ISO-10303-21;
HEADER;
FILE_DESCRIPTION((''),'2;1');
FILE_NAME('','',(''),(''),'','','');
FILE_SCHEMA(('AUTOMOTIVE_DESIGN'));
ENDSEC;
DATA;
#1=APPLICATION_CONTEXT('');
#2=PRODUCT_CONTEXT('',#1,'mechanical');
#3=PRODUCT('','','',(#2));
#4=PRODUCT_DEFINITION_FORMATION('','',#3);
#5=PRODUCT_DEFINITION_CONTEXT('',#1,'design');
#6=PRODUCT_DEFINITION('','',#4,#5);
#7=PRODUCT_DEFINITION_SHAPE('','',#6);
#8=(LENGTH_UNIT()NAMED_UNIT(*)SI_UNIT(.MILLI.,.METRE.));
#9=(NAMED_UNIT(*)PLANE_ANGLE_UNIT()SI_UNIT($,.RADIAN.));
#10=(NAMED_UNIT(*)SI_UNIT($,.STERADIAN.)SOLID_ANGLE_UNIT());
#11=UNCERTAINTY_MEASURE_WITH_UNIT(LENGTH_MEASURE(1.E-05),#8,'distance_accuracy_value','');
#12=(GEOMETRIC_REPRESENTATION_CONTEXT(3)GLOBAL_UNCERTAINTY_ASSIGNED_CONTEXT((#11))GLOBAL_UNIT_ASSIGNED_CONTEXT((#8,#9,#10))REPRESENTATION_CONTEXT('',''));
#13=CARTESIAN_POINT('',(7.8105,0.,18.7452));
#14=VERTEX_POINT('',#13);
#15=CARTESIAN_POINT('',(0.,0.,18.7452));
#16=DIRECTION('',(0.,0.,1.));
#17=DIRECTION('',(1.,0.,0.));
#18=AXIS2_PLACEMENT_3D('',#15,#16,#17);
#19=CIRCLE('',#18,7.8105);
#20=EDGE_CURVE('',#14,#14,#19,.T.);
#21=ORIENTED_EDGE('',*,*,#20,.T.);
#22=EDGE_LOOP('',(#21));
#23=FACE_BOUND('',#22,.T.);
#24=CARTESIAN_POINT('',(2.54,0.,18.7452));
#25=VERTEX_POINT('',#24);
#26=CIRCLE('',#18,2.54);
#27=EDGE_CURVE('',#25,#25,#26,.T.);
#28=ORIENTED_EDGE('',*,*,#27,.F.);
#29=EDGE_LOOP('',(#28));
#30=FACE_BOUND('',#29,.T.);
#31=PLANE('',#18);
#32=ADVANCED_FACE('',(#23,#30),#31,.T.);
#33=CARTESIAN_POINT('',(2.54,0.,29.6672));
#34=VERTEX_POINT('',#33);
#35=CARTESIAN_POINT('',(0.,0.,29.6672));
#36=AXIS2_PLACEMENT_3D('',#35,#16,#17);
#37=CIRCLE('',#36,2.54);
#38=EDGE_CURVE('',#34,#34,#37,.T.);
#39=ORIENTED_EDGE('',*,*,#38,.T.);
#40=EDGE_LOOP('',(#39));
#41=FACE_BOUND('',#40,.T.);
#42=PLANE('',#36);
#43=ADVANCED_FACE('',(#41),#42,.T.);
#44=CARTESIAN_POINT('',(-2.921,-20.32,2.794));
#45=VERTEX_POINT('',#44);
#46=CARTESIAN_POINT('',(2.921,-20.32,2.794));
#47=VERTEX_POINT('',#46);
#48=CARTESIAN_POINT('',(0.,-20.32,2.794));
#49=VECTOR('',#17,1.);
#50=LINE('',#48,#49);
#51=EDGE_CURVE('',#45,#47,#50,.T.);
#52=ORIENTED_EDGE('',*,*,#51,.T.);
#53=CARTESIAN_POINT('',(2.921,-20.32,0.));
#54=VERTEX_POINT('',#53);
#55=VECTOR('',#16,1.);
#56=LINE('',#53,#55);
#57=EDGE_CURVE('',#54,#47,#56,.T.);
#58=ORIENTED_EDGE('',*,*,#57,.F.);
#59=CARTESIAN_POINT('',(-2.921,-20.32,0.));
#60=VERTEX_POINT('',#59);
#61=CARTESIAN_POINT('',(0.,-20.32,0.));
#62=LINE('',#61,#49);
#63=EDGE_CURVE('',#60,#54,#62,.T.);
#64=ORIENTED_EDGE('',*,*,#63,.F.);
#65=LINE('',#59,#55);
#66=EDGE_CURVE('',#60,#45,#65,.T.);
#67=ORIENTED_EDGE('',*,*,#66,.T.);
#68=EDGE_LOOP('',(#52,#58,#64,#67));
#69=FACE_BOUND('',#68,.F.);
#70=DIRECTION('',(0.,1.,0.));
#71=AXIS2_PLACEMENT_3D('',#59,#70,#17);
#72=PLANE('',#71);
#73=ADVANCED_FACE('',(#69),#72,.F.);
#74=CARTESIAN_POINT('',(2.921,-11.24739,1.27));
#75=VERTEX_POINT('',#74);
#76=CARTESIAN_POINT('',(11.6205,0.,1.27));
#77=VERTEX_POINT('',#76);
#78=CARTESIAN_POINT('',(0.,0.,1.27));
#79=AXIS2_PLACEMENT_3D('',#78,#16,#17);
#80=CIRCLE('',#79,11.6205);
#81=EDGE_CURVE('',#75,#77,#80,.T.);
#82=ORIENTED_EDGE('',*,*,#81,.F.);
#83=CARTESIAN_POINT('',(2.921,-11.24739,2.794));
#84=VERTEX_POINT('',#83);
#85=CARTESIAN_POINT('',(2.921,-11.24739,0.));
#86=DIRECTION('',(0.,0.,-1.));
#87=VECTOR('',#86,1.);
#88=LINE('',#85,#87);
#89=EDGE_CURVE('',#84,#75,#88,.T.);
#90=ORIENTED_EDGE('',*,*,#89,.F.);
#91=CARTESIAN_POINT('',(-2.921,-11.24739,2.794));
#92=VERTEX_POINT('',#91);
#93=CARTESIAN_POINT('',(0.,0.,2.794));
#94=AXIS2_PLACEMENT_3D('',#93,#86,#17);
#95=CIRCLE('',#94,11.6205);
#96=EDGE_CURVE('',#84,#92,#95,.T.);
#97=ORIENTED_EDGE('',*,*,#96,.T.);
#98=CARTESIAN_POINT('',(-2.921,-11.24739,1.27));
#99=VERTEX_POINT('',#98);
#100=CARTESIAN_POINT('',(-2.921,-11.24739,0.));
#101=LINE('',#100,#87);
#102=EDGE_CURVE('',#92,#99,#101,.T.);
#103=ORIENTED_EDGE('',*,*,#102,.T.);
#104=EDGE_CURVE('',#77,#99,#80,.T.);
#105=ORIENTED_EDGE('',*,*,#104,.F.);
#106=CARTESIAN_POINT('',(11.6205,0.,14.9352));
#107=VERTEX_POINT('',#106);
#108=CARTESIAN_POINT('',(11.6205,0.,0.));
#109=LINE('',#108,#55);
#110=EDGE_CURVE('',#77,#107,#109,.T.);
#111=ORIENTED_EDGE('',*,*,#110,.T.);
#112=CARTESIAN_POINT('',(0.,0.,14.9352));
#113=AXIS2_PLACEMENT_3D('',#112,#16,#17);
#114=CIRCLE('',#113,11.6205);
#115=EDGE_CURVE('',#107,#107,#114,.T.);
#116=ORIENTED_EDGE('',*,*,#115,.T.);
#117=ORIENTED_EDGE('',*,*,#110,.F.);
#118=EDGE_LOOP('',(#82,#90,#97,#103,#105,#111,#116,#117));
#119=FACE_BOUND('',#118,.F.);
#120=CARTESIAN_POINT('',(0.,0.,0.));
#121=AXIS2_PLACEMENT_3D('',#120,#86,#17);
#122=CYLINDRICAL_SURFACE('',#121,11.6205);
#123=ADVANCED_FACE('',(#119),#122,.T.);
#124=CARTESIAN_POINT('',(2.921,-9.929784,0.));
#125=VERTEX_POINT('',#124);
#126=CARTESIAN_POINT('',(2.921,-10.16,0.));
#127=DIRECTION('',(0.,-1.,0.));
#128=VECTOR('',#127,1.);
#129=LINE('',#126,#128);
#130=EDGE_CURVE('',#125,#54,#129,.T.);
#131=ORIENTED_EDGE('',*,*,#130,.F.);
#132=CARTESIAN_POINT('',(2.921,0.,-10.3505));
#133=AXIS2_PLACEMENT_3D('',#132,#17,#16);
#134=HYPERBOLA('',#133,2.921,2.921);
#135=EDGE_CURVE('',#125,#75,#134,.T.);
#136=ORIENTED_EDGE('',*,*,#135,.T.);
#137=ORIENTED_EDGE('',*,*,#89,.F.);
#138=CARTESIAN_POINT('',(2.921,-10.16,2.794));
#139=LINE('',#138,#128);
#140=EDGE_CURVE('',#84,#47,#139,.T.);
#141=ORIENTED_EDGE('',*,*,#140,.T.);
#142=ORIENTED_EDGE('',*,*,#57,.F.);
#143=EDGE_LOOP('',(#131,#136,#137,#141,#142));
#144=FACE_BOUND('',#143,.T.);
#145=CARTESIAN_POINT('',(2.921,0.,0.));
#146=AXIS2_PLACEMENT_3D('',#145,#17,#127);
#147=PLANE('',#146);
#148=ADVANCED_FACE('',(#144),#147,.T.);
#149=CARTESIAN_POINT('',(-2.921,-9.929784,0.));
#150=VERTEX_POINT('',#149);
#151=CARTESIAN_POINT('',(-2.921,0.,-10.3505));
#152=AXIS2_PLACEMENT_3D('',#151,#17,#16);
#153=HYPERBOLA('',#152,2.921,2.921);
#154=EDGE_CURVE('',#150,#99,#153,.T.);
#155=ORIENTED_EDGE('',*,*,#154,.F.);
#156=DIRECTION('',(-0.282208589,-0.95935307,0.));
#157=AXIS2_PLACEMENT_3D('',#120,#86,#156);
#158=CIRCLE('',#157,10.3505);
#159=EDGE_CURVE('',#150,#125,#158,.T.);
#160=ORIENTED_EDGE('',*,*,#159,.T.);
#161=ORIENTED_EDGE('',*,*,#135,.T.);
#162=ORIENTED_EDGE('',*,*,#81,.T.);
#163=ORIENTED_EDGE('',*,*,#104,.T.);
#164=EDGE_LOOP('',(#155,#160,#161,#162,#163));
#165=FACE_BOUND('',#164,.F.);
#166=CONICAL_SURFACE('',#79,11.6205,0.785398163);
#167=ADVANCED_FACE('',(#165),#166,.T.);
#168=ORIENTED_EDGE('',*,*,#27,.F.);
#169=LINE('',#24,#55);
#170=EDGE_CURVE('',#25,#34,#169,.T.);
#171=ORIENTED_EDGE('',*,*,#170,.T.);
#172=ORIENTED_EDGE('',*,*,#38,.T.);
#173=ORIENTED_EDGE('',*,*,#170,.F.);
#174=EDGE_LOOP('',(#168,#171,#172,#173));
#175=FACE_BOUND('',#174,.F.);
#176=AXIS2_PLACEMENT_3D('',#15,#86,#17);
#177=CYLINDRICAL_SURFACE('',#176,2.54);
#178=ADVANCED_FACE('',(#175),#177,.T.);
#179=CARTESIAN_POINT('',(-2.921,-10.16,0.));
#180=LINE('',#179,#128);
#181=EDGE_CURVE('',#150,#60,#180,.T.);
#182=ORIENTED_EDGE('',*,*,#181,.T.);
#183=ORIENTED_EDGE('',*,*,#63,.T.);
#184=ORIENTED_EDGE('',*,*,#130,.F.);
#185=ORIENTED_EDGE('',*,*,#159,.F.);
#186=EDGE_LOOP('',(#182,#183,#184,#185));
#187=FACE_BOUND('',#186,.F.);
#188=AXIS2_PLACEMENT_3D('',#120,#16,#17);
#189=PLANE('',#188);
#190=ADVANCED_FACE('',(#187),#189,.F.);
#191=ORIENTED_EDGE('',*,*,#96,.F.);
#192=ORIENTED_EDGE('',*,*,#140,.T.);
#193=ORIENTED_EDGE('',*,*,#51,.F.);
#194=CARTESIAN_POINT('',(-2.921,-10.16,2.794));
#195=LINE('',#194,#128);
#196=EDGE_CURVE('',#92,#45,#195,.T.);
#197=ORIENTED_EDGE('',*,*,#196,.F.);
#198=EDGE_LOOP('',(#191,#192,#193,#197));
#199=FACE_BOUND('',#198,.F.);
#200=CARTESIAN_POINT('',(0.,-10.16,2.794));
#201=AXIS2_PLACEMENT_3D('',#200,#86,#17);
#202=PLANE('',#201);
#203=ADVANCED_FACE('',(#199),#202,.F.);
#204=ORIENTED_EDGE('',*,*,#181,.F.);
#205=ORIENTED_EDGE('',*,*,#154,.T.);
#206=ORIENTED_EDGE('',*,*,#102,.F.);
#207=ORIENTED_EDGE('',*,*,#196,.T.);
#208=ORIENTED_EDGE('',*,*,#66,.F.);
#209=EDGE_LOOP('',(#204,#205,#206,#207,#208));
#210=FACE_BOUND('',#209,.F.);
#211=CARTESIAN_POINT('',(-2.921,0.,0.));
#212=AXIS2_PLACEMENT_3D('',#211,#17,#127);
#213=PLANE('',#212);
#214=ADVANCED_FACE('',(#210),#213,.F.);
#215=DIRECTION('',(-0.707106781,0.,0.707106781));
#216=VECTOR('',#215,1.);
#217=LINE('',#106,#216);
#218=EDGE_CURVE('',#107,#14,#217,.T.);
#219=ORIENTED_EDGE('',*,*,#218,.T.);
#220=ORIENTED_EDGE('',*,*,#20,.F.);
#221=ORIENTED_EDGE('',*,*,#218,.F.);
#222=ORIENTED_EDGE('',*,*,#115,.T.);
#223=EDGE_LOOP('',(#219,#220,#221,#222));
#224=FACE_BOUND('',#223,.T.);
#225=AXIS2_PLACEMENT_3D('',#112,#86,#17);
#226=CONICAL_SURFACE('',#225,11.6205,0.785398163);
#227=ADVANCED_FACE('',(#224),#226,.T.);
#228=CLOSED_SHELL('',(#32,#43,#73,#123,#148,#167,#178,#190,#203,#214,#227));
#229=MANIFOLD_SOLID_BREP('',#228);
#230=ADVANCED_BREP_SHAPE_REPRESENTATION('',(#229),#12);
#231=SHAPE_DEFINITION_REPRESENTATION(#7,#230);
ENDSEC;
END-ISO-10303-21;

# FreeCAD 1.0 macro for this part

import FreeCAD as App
import Part
import Sketcher
from FreeCAD import Vector
Q = App.Units.Quantity


def edges_at(feature, points):
    """Names of the edges that pass closest to the given points."""
    edges = feature.Shape.Edges
    near = lambda p: min(range(len(edges)), key=lambda i: edges[i].distToShape(Part.Vertex(*p))[0])
    return sorted({f"Edge{near(p) + 1}" for p in points})

doc = App.newDocument("Part")
body = doc.addObject("PartDesign::Body", "Body")

sketch1 = body.newObject("Sketcher::SketchObject", "Sketch")
sketch1.AttachmentSupport = (doc.getObject("XY_Plane"), [""])
sketch1.MapMode = "FlatFace"
sketch1.addGeometry(Part.Circle(Vector(0, 0, 0), Vector(0, 0, 1), 12), False)
sketch1.addConstraint([
    Sketcher.Constraint("Coincident", 0, 3, -1, 1),
    Sketcher.Constraint("Diameter", 0, Q("0.915 in")),
])
pad1 = body.newObject("PartDesign::Pad", "Pad")
pad1.Profile = sketch1
pad1.Length = Q("0.738 in")

sketch2 = body.newObject("Sketcher::SketchObject", "Sketch001")
sketch2.AttachmentSupport = (doc.getObject("XY_Plane"), [""])
sketch2.MapMode = "FlatFace"
sketch2.AttachmentOffset = App.Placement(Vector(0, 0, 0.738 * 25.4), App.Rotation())
sketch2.addGeometry(Part.Circle(Vector(0, 0, 0), Vector(0, 0, 1), 2.5), False)
sketch2.addConstraint([
    Sketcher.Constraint("Coincident", 0, 3, -1, 1),
    Sketcher.Constraint("Diameter", 0, Q("0.2 in")),
])
pad2 = body.newObject("PartDesign::Pad", "Pad001")
pad2.Profile = sketch2
pad2.Length = Q("0.43 in")
doc.recompute()

chamfer = body.newObject("PartDesign::Chamfer", "Chamfer")
chamfer.Base = (pad2, edges_at(pad2, [(-11.62, 0, 18.745)]))
chamfer.Size = Q("0.15 in")
doc.recompute()

chamfer2 = body.newObject("PartDesign::Chamfer", "Chamfer001")
chamfer2.Base = (chamfer, edges_at(chamfer, [(-11.62, 0, 0)]))
chamfer2.Size = Q("0.05 in")

sketch3 = body.newObject("Sketcher::SketchObject", "Sketch002")
sketch3.AttachmentSupport = (doc.getObject("XY_Plane"), [""])
sketch3.MapMode = "FlatFace"
sketch3.addGeometry([
    Part.LineSegment(Vector(-3, -20, 0), Vector(-3, 0, 0)),
    Part.LineSegment(Vector(-3, 0, 0), Vector(3, 0, 0)),
    Part.LineSegment(Vector(3, 0, 0), Vector(3, -20, 0)),
    Part.LineSegment(Vector(3, -20, 0), Vector(-3, -20, 0)),
], False)
sketch3.addConstraint([
    Sketcher.Constraint("Coincident", 0, 2, 1, 1),
    Sketcher.Constraint("Coincident", 1, 2, 2, 1),
    Sketcher.Constraint("Coincident", 2, 2, 3, 1),
    Sketcher.Constraint("Coincident", 3, 2, 0, 1),
    Sketcher.Constraint("Vertical", 0),
    Sketcher.Constraint("Horizontal", 1),
    Sketcher.Constraint("Vertical", 2),
    Sketcher.Constraint("Horizontal", 3),
    Sketcher.Constraint("Symmetric", 0, 2, 1, 2, -1, 1),
    Sketcher.Constraint("DistanceY", 0, 1, 0, 2, Q("0.8 in")),
    Sketcher.Constraint("DistanceX", 1, 1, 1, 2, Q("0.23 in")),
])
pad3 = body.newObject("PartDesign::Pad", "Pad002")
pad3.Profile = sketch3
pad3.Length = Q("0.11 in")

doc.recompute()
